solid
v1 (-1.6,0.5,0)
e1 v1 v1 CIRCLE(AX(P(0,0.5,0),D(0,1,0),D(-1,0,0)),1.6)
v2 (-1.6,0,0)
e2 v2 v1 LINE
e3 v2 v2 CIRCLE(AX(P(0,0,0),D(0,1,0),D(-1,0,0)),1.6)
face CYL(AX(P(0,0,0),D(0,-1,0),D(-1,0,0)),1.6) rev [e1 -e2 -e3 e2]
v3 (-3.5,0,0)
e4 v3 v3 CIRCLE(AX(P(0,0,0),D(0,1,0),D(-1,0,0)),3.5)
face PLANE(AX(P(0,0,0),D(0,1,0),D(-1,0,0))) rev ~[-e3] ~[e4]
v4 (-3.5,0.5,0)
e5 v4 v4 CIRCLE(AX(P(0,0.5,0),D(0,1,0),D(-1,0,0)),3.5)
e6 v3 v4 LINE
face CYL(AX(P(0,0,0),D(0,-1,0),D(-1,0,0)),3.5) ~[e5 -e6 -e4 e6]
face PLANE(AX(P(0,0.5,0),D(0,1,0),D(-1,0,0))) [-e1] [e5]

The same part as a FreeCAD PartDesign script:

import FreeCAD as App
import Part
import Sketcher

doc = App.newDocument("Part")
params = doc.addObject("Spreadsheet::Sheet", "Params")
for row, (alias, value) in enumerate([
    ("sketch1_diameter", "7 mm"),
    ("sketch1_diameter2", "3.2 mm"),
    ("pad1_length", "0.5 mm"),
], start=1):
    params.set(f"A{row}", alias)
    params.set(f"B{row}", "=" + value)
    params.setAlias(f"B{row}", alias)

body = doc.addObject("PartDesign::Body", "Body")

# Sketch on XZ plane
sketch1 = body.newObject("Sketcher::SketchObject", "Sketch")
sketch1.AttachmentSupport = (doc.getObject("XZ_Plane"), [""])
sketch1.MapMode = "FlatFace"
sketch1.addGeometry([
    Part.Circle(App.Vector(0, 0, 0), App.Vector(0, 0, 1), 3.5),
    Part.Circle(App.Vector(0, 0, 0), App.Vector(0, 0, 1), 1.6),
], False)
sketch1.addConstraint([
    Sketcher.Constraint("Coincident", 0, 3, -1, 1),
    Sketcher.Constraint("Coincident", 1, 3, -1, 1),
    Sketcher.Constraint("Diameter", 0, 7.0),
    Sketcher.Constraint("Diameter", 1, 3.2),
])
sketch1.setExpression("Constraints[2]", "Params.sketch1_diameter")
sketch1.setExpression("Constraints[3]", "Params.sketch1_diameter2")
pad1 = body.newObject("PartDesign::Pad", "Pad")
pad1.Profile = sketch1
pad1.setExpression("Length", "Params.pad1_length")
pad1.Reversed = True

doc.recompute()
